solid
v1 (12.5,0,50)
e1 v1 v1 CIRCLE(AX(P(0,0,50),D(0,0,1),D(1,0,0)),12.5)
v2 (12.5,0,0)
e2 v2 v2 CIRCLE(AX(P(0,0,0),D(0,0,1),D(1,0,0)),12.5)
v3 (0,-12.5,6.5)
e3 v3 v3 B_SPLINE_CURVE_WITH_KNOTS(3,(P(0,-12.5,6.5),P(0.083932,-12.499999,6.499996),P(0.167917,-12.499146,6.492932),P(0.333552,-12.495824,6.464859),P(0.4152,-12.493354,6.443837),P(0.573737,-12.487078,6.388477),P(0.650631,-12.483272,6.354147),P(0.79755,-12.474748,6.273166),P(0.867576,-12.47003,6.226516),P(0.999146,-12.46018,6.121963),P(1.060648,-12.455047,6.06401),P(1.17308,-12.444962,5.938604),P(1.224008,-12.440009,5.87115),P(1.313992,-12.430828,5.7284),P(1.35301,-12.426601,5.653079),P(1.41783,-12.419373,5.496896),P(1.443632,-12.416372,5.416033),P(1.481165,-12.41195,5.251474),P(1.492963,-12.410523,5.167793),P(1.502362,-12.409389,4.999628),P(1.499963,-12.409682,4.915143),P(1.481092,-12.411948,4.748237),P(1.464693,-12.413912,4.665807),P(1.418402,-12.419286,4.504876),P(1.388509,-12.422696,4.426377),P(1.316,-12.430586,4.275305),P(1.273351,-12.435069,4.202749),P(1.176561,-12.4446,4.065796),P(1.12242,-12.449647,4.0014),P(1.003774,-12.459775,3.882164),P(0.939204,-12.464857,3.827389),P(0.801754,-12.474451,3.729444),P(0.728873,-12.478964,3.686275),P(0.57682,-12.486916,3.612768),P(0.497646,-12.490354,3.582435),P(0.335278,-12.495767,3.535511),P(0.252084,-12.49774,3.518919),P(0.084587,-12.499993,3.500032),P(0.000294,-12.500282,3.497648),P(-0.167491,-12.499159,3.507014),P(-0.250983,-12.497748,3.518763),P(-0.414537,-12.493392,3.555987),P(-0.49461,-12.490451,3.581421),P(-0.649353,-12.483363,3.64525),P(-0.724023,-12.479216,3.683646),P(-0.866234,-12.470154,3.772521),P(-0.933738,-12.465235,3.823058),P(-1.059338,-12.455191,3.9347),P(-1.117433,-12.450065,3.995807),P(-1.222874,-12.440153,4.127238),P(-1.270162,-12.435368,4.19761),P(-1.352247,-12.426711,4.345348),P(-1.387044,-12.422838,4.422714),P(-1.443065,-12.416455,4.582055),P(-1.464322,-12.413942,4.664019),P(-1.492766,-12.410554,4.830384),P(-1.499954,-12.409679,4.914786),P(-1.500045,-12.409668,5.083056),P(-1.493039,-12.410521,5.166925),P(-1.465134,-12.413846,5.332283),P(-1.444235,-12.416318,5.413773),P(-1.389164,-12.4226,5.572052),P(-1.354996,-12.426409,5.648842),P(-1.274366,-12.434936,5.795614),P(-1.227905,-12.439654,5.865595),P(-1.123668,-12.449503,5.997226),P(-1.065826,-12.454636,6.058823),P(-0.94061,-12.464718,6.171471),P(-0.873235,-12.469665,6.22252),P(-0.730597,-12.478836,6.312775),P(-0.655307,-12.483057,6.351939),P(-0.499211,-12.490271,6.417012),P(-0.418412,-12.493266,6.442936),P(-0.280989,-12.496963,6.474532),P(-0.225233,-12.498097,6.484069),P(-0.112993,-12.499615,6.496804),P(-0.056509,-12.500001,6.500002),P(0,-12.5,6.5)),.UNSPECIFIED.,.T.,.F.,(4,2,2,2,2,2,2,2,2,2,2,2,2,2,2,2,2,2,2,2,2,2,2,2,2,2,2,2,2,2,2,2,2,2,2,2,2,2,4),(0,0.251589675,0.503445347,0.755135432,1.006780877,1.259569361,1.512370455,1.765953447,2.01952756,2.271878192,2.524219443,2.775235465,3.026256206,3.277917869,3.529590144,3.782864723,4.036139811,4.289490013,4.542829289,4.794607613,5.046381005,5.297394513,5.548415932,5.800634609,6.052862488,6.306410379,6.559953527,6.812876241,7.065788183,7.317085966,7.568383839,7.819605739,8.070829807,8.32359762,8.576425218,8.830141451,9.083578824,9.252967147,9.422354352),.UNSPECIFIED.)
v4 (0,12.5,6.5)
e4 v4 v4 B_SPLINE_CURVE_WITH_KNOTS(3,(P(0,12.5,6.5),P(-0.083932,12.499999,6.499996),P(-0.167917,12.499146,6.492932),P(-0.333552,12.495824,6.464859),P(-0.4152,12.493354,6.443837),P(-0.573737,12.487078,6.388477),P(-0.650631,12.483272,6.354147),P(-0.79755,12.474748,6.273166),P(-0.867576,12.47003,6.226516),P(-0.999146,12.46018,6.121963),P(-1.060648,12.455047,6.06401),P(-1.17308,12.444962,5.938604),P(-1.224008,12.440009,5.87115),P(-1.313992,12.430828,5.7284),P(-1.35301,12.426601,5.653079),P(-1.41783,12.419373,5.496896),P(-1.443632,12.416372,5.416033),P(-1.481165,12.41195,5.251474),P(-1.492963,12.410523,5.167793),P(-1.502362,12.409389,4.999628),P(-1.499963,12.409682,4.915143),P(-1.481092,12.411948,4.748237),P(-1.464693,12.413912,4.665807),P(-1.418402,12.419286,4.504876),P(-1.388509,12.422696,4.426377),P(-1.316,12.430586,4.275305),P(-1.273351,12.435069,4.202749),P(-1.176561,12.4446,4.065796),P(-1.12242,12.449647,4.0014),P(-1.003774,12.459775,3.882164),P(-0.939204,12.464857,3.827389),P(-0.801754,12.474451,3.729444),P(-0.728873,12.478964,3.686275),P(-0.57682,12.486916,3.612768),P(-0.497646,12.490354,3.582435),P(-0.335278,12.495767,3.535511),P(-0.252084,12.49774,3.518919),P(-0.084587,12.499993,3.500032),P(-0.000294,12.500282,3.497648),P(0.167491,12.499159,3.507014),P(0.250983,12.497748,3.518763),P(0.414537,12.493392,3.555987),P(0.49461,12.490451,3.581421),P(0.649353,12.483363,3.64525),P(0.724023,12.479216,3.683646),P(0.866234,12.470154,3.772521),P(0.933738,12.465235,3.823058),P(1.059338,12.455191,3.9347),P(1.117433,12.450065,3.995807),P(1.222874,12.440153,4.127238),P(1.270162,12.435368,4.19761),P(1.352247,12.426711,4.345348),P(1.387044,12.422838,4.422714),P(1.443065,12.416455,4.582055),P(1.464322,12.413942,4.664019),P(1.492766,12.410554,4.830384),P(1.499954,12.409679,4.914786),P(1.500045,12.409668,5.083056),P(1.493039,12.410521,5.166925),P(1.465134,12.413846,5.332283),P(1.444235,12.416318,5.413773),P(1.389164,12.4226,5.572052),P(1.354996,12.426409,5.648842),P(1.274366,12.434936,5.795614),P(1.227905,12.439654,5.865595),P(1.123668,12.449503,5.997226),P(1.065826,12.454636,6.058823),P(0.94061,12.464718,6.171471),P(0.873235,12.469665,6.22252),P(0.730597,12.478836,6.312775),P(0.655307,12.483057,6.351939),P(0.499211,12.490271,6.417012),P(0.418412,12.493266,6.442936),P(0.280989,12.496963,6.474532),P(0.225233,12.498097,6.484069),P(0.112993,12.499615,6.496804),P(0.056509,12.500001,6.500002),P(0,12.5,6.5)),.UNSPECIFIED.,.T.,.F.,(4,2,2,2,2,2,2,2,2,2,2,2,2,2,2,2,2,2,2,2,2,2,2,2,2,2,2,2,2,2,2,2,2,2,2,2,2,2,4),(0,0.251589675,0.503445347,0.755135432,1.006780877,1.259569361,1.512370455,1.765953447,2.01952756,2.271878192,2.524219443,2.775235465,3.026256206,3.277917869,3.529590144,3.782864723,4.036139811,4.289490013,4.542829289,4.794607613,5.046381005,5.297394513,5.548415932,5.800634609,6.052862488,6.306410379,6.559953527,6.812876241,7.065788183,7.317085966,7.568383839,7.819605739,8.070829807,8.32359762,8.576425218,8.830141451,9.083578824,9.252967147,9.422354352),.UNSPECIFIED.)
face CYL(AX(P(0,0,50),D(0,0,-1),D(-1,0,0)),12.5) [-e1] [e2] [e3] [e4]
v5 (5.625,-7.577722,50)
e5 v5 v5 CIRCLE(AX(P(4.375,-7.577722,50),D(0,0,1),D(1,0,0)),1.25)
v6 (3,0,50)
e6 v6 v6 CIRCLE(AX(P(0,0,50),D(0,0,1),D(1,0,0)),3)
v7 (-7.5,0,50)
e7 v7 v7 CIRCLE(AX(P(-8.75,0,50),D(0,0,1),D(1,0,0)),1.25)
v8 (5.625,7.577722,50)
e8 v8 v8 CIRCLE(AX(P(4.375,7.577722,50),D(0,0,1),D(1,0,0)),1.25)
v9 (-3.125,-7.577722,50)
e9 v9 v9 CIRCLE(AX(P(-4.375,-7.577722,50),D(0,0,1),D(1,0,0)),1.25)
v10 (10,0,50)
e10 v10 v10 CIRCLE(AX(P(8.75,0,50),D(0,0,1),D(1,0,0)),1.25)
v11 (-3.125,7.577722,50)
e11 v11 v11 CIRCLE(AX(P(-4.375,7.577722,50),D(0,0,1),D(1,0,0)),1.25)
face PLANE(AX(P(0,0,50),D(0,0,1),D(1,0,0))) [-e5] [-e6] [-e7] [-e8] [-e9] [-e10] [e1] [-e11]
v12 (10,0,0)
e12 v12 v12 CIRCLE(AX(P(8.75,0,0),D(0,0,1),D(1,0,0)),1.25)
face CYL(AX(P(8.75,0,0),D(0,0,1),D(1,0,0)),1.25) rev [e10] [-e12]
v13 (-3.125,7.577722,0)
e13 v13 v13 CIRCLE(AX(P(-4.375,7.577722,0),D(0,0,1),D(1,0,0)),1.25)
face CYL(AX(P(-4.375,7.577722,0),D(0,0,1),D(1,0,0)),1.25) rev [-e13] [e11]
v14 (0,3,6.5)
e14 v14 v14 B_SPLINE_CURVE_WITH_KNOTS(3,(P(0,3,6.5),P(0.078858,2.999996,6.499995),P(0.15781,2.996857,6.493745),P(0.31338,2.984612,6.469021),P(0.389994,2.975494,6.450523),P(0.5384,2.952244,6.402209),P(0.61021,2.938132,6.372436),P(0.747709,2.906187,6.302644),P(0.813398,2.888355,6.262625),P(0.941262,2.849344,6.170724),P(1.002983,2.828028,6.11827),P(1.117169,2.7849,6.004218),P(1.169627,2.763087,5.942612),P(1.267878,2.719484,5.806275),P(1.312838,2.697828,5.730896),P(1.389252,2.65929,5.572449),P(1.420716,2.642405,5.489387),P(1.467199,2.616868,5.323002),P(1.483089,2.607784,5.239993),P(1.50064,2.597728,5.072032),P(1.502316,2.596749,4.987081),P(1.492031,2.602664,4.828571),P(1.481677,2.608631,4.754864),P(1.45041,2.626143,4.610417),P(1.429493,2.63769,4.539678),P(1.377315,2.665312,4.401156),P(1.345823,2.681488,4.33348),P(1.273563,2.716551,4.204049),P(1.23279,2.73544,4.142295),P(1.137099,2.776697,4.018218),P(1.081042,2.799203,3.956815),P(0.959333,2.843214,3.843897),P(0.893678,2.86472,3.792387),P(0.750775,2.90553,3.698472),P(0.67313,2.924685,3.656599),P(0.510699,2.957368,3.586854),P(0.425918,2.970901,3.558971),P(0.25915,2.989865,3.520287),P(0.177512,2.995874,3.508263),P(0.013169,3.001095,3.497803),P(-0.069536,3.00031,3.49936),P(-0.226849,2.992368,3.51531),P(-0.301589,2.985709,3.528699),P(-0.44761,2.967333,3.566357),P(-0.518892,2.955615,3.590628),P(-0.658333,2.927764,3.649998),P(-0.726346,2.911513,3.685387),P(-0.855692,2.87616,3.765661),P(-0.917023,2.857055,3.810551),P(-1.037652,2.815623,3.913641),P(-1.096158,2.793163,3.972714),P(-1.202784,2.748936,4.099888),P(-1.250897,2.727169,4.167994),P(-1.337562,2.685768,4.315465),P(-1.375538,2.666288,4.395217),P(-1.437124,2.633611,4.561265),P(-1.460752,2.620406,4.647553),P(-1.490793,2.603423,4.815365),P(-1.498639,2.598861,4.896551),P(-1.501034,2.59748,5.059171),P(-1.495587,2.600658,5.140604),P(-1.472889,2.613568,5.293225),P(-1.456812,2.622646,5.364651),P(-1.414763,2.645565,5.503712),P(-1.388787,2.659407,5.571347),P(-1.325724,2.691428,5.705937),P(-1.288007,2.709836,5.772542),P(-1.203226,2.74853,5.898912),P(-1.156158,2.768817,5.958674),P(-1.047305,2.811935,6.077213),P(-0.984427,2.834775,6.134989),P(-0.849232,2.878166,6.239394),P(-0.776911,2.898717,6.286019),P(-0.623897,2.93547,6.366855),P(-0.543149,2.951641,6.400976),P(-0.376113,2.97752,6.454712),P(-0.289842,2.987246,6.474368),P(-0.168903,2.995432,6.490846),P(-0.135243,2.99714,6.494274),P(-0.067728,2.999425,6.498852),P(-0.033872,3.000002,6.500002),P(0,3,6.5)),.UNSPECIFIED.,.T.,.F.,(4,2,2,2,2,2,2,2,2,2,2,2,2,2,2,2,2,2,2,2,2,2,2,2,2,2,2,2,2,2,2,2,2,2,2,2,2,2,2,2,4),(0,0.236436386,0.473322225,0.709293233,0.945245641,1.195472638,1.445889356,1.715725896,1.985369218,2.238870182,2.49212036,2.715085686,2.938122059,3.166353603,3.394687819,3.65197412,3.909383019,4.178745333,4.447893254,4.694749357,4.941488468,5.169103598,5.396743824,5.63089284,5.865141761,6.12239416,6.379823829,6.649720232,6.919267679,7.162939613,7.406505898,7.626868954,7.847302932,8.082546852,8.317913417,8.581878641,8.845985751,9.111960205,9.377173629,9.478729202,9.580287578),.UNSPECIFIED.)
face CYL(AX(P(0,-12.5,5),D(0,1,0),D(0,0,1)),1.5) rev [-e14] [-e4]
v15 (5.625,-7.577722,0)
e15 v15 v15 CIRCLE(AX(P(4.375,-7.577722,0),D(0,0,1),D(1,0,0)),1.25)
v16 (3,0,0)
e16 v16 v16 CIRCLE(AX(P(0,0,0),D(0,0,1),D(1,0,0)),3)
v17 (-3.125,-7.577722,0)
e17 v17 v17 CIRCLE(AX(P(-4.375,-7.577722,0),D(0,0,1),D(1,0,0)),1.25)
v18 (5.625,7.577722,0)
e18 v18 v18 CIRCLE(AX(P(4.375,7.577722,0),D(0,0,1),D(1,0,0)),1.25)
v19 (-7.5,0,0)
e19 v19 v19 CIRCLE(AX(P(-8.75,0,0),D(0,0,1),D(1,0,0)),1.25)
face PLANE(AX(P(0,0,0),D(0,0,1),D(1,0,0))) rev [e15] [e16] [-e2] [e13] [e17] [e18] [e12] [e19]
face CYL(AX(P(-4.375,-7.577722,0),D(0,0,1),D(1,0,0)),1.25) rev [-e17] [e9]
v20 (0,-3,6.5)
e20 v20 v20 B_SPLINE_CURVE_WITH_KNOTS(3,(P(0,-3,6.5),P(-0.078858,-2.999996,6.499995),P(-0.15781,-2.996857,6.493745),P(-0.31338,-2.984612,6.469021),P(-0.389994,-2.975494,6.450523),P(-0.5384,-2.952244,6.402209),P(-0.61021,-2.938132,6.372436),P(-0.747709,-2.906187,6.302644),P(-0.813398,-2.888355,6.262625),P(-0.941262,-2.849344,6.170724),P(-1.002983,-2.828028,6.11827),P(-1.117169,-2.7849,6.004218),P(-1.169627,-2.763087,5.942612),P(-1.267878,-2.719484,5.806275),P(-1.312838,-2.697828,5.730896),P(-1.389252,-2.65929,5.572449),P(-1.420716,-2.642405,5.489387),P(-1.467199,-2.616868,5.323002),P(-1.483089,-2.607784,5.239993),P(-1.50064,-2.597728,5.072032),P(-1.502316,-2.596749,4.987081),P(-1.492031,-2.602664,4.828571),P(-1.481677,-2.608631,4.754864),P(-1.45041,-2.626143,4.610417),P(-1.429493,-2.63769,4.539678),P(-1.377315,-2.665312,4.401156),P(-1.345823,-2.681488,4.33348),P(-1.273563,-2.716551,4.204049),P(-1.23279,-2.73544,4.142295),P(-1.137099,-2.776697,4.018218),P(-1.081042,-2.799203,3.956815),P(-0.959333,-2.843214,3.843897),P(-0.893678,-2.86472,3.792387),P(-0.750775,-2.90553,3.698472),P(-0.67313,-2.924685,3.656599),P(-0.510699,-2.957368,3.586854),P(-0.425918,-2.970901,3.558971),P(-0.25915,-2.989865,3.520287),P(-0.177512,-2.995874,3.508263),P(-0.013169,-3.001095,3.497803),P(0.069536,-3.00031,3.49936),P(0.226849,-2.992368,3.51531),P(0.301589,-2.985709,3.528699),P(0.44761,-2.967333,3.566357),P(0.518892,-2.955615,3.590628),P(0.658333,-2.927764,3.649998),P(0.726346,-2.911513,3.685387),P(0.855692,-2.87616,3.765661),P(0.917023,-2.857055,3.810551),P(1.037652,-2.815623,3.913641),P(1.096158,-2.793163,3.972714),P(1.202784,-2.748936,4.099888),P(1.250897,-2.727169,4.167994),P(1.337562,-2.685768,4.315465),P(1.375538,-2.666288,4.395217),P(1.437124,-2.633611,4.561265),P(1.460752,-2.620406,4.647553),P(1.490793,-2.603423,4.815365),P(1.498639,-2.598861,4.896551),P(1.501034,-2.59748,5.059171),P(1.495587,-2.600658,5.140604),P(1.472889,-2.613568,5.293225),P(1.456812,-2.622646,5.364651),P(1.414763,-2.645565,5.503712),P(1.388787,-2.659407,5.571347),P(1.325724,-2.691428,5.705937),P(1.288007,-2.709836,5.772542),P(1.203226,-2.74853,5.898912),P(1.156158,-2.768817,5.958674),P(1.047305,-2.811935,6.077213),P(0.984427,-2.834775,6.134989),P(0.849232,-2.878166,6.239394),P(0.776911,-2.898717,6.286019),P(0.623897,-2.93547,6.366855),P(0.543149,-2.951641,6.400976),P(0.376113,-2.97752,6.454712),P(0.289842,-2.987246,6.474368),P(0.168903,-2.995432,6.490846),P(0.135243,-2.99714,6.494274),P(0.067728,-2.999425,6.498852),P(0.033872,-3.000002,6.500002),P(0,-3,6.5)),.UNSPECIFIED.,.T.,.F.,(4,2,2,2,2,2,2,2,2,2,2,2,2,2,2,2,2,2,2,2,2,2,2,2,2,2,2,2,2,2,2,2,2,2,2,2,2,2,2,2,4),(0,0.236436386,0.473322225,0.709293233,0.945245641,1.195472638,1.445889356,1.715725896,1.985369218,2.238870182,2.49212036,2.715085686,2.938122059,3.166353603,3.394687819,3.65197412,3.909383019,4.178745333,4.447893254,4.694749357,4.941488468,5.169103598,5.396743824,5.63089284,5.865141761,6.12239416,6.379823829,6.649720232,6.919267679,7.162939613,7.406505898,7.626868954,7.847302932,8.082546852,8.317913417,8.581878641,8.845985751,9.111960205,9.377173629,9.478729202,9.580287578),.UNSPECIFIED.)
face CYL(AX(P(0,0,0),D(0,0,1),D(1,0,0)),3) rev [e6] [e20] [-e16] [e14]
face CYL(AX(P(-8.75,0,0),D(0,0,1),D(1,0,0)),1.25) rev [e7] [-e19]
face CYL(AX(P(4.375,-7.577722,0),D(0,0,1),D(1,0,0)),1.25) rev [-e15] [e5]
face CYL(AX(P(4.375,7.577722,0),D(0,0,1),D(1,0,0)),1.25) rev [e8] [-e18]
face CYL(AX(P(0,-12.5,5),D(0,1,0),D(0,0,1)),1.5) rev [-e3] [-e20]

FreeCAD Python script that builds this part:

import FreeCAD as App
import Part
import Sketcher

V = App.Vector
Q = App.Units.Quantity

doc = App.newDocument("Part")
params = doc.addObject("Spreadsheet::Sheet", "Params")
for row, (alias, value) in enumerate([
    ("sketch1_diameter", "25 mm"),
    ("pad1_length", "50 mm"),
    ("sketch2_diameter", "6 mm"),
    ("sketch2_diameter2", "2.5 mm"),
    ("sketch3_diameter", "3 mm"),
], start=1):
    params.set(f"A{row}", alias)
    params.set(f"B{row}", "=" + value)
    params.setAlias(f"B{row}", alias)

body = doc.addObject("PartDesign::Body", "Body")

sketch1 = doc.addObject("Sketcher::SketchObject", "Sketch")
body.addObject(sketch1)
sketch1.AttachmentSupport = (doc.XY_Plane, [""])
sketch1.MapMode = "FlatFace"
sketch1.addGeometry(Part.Circle(V(0, 0, 0), V(0, 0, 1), 12.5), False)
sketch1.addConstraint(Sketcher.Constraint("Coincident", 0, 3, -1, 1))
sketch1.addConstraint(Sketcher.Constraint("Diameter", 0, Q("25 mm")))
sketch1.setExpression("Constraints[1]", "Params.sketch1_diameter")
pad1 = doc.addObject("PartDesign::Pad", "Pad")
body.addObject(pad1)
pad1.Profile = sketch1
pad1.setExpression("Length", "Params.pad1_length")

sketch2 = doc.addObject("Sketcher::SketchObject", "Sketch001")
body.addObject(sketch2)
sketch2.AttachmentSupport = (doc.XY_Plane, [""])
sketch2.MapMode = "FlatFace"
sketch2.AttachmentOffset = App.Placement(V(0, 0, 50), App.Rotation())
sketch2.addGeometry(Part.Circle(V(8.75, 0, 0), V(0, 0, 1), 1.25), False)
sketch2.addGeometry(Part.Circle(V(4.375, -7.577722, 0), V(0, 0, 1), 1.25), False)
sketch2.addGeometry(Part.Circle(V(-4.375, -7.577722, 0), V(0, 0, 1), 1.25), False)
sketch2.addGeometry(Part.Circle(V(-8.75, 0, 0), V(0, 0, 1), 1.25), False)
sketch2.addGeometry(Part.Circle(V(-4.375, 7.577722, 0), V(0, 0, 1), 1.25), False)
sketch2.addGeometry(Part.Circle(V(4.375, 7.577722, 0), V(0, 0, 1), 1.25), False)
sketch2.addGeometry(Part.Circle(V(0, 0, 0), V(0, 0, 1), 3), False)
sketch2.addConstraint(Sketcher.Constraint("Coincident", 6, 3, -1, 1))
sketch2.addConstraint(Sketcher.Constraint("Equal", 0, 1))
sketch2.addConstraint(Sketcher.Constraint("Equal", 1, 2))
sketch2.addConstraint(Sketcher.Constraint("Equal", 2, 3))
sketch2.addConstraint(Sketcher.Constraint("Equal", 3, 4))
sketch2.addConstraint(Sketcher.Constraint("Equal", 4, 5))
sketch2.addConstraint(Sketcher.Constraint("Symmetric", 0, 3, 3, 3, -1, 1))
sketch2.addConstraint(Sketcher.Constraint("Symmetric", 1, 3, 4, 3, -1, 1))
sketch2.addConstraint(Sketcher.Constraint("Symmetric", 2, 3, 5, 3, -1, 1))
sketch2.addConstraint(Sketcher.Constraint("Symmetric", 1, 3, 2, 3, -2))
sketch2.addConstraint(Sketcher.Constraint("PointOnObject", 0, 3, -1))
sketch2.addConstraint(Sketcher.Constraint("Diameter", 6, Q("6 mm")))
sketch2.addConstraint(Sketcher.Constraint("Diameter", 0, Q("2.5 mm")))
sketch2.addConstraint(Sketcher.Constraint("DistanceX", 3, 3, 0, 3, Q("17.5 mm")))
sketch2.addConstraint(Sketcher.Constraint("DistanceX", 2, 3, 1, 3, Q("8.75 mm")))
sketch2.addConstraint(Sketcher.Constraint("DistanceY", 1, 3, -1, 1, Q("7.577722 mm")))
sketch2.setExpression("Constraints[11]", "Params.sketch2_diameter")
sketch2.setExpression("Constraints[12]", "Params.sketch2_diameter2")
pocket1 = doc.addObject("PartDesign::Pocket", "Pocket")
body.addObject(pocket1)
pocket1.Profile = sketch2
pocket1.Type = "ThroughAll"

sketch3 = doc.addObject("Sketcher::SketchObject", "Sketch002")
body.addObject(sketch3)
sketch3.AttachmentSupport = (doc.XZ_Plane, [""])
sketch3.MapMode = "FlatFace"
sketch3.AttachmentOffset = App.Placement(V(0, 0, -12.5), App.Rotation())
sketch3.addGeometry(Part.Circle(V(0, 5, 0), V(0, 0, 1), 1.5), False)
sketch3.addConstraint(Sketcher.Constraint("PointOnObject", 0, 3, -2))
sketch3.addConstraint(Sketcher.Constraint("Diameter", 0, Q("3 mm")))
sketch3.addConstraint(Sketcher.Constraint("DistanceY", -1, 1, 0, 3, Q("5 mm")))
sketch3.setExpression("Constraints[1]", "Params.sketch3_diameter")
pocket2 = doc.addObject("PartDesign::Pocket", "Pocket001")
body.addObject(pocket2)
pocket2.Profile = sketch3
pocket2.Type = "ThroughAll"
pocket2.Reversed = True

doc.recompute()
